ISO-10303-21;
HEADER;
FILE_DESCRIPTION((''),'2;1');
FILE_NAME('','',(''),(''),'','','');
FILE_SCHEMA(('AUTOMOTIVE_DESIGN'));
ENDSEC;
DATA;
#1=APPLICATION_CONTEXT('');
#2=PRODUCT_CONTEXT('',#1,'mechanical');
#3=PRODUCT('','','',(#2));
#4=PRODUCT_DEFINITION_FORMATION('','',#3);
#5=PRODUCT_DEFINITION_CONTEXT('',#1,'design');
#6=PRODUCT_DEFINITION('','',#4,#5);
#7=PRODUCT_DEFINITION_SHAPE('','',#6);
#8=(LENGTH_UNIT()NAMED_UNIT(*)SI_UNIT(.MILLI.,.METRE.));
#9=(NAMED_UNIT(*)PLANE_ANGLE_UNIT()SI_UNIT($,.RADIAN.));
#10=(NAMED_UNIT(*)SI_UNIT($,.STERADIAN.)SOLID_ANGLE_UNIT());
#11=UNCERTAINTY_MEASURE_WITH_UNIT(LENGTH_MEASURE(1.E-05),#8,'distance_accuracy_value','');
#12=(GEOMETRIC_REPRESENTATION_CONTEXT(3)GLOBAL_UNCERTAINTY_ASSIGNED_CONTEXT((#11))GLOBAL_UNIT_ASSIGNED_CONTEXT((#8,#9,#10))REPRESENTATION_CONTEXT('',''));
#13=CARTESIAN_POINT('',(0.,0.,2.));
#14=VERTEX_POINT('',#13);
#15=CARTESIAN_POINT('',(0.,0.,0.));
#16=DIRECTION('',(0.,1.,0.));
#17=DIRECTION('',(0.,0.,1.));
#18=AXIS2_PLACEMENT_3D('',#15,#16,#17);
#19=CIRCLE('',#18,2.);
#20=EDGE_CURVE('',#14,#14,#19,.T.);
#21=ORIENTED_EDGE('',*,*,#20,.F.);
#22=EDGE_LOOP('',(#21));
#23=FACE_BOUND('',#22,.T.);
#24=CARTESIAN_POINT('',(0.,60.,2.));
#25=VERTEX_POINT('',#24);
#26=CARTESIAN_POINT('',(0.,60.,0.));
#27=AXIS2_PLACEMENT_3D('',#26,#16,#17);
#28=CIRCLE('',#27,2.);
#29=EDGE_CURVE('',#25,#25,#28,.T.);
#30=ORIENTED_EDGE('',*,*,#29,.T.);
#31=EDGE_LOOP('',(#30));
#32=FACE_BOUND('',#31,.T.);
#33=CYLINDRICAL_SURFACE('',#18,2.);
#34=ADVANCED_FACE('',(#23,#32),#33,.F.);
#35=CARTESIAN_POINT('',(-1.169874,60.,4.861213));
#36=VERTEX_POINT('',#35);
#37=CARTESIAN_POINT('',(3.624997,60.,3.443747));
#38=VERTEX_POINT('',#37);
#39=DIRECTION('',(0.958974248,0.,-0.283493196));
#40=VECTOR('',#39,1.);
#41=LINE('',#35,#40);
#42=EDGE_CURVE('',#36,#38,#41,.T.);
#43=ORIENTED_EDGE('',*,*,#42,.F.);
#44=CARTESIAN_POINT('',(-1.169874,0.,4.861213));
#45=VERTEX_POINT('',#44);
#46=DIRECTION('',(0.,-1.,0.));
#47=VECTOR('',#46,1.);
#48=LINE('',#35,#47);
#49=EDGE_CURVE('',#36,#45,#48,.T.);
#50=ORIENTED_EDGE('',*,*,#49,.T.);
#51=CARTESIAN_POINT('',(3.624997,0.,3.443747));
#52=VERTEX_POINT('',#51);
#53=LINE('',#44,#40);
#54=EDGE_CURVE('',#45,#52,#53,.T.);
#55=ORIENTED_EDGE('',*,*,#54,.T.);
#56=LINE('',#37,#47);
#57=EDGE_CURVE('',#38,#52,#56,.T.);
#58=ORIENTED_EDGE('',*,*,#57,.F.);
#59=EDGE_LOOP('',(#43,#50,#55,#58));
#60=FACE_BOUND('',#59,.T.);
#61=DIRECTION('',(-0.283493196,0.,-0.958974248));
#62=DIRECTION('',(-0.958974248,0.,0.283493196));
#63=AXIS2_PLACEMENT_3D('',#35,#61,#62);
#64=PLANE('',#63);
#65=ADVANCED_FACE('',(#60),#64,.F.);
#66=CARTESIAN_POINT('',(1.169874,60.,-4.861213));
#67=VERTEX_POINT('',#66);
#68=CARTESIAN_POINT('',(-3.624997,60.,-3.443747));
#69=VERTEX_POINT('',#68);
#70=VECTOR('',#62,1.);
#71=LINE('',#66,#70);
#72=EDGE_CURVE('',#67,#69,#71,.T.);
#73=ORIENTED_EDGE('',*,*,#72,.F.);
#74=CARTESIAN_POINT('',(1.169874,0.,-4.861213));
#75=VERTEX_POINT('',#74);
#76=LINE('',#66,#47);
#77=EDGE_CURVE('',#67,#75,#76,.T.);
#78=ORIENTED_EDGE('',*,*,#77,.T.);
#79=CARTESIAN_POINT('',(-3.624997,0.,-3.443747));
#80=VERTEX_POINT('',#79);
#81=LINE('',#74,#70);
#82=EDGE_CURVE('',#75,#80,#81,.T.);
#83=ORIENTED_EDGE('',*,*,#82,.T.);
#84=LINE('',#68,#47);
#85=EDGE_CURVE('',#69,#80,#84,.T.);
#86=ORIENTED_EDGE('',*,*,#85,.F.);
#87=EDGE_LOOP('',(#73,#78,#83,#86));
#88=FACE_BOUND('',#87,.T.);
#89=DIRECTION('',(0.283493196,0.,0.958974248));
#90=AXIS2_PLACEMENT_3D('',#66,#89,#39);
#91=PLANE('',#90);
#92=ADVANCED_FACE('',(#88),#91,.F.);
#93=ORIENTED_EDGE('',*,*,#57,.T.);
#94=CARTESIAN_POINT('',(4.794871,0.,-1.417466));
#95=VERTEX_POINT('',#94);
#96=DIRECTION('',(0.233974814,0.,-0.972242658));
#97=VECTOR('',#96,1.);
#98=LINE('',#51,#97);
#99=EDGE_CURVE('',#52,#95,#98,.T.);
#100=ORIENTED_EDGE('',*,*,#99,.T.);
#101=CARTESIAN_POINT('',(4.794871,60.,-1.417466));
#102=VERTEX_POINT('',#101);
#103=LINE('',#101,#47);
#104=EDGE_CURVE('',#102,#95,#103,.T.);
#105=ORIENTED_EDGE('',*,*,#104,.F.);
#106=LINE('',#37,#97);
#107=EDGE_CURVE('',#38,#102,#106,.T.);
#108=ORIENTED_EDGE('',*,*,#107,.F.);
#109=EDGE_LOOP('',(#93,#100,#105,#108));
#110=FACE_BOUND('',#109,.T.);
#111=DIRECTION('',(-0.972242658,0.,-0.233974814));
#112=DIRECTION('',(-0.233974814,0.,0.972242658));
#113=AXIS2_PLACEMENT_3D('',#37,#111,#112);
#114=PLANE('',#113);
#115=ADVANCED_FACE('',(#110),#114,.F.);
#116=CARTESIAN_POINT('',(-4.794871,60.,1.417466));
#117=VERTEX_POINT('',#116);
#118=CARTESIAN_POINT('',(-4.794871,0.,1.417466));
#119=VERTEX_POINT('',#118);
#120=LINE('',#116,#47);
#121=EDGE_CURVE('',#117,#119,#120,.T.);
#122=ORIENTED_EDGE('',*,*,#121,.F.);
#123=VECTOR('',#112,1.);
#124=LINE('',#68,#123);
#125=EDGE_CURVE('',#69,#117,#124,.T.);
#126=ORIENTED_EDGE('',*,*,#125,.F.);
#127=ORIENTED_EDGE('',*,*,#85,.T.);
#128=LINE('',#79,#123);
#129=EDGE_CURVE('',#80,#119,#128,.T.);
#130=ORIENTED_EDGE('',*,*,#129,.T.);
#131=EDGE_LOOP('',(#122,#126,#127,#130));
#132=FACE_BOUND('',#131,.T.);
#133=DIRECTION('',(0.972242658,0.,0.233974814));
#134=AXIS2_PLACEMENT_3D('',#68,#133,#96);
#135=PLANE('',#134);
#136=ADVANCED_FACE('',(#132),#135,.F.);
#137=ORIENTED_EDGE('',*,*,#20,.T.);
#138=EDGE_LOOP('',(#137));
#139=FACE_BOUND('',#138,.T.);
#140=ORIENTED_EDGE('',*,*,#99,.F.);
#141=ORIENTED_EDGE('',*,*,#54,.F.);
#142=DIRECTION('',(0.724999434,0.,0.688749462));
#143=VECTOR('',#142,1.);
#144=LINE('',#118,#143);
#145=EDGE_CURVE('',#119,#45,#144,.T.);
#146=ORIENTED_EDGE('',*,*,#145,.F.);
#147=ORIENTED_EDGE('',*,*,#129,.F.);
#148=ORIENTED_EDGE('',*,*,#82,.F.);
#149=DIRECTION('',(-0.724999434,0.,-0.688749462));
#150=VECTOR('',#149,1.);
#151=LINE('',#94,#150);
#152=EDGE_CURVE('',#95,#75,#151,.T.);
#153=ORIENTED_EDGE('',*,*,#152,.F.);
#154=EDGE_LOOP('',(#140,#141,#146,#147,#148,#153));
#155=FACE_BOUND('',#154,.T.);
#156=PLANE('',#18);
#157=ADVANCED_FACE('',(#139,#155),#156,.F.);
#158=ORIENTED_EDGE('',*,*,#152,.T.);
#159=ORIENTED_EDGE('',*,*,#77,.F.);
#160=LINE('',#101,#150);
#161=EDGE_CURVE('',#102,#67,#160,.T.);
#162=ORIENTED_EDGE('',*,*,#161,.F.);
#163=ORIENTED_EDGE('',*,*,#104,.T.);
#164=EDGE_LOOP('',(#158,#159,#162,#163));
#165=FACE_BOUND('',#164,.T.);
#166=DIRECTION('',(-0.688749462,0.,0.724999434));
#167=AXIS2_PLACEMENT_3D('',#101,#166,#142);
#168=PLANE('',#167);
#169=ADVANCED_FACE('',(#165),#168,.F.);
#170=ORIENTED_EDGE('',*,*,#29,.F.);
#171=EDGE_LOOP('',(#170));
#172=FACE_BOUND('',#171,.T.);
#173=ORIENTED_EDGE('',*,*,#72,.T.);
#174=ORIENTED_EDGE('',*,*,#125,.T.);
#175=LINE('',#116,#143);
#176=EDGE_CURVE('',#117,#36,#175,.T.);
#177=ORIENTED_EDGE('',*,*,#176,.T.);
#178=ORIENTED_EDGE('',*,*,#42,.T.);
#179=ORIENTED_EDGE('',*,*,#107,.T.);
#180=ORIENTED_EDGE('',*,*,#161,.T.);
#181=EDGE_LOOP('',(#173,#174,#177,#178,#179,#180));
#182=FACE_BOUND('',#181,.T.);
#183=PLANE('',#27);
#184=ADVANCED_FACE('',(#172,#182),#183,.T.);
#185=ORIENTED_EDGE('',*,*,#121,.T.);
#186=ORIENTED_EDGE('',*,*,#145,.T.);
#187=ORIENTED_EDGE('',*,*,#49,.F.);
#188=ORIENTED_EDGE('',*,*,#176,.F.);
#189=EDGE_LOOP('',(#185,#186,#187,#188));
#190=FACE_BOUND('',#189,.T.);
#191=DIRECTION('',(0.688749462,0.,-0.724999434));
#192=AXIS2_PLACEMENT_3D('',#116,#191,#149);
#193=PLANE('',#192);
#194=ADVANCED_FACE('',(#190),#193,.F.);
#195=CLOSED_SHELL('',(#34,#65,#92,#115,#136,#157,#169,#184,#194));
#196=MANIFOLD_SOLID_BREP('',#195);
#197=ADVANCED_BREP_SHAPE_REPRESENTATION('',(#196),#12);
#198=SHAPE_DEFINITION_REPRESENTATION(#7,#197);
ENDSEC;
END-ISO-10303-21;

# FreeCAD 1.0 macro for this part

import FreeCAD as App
import Part
import Sketcher
Q = App.Units.Quantity


def add_polygon(sketch, points):
    """Adds a closed chain of lines whose ends are joined by coincident constraints."""
    first, n = sketch.GeometryCount, len(points)
    for a, b in zip(points, points[1:] + points[:1]):
        sketch.addGeometry(Part.LineSegment(App.Vector(*a, 0), App.Vector(*b, 0)), False)
    for i in range(n):
        sketch.addConstraint(Sketcher.Constraint("Coincident", first + i, 2, first + (i + 1) % n, 1))

doc = App.newDocument("Part")
body = doc.addObject("PartDesign::Body", "Body")

sketch1 = body.newObject("Sketcher::SketchObject", "Sketch")
sketch1.AttachmentSupport = (doc.getObject("XZ_Plane"), [""])
sketch1.MapMode = "FlatFace"
add_polygon(sketch1, [(3.6, 3.4), (4.8, -1.4), (1.2, -4.9), (-3.6, -3.4), (-4.8, 1.4), (-1.2, 4.9)])
add_polygon(sketch1, [(2.6, -0.8), (2, 1.9), (-0.6, 2.6), (-2.6, 0.8), (-2, -1.9), (0.6, -2.6)])
sketch1.addConstraint([
    Sketcher.Constraint("Symmetric", 0, 2, 3, 2, -1, 1),
    Sketcher.Constraint("Symmetric", 1, 2, 4, 2, -1, 1),
    Sketcher.Constraint("Symmetric", 2, 2, 5, 2, -1, 1),
    Sketcher.Constraint("Symmetric", 6, 2, 9, 2, -1, 1),
    Sketcher.Constraint("Symmetric", 7, 2, 10, 2, -1, 1),
    Sketcher.Constraint("Symmetric", 8, 2, 11, 2, -1, 1),
    Sketcher.Constraint("Parallel", 3, 6),
    Sketcher.Constraint("Parallel", 5, 7),
    Sketcher.Constraint("Parallel", 4, 8),
    Sketcher.Constraint("Equal", 0, 1),
    Sketcher.Constraint("Equal", 1, 2),
    Sketcher.Constraint("Equal", 6, 7),
    Sketcher.Constraint("Equal", 7, 8),
    Sketcher.Constraint("Distance", 0, Q("5 mm")),
    Sketcher.Constraint("Distance", 6, Q("2.690599 mm")),
    Sketcher.Constraint("DistanceY", 6, 2, 5, 2, Q("1.590599 mm")),
    Sketcher.Constraint("DistanceY", 7, 2, 4, 2, Q("2.245298 mm")),
    Sketcher.Constraint("DistanceY", 8, 2, 3, 2, Q("0.654699 mm")),
])
pad1 = body.newObject("PartDesign::Pad", "Pad")
pad1.Profile = sketch1
pad1.Length = 60
pad1.Reversed = True

sketch2 = body.newObject("Sketcher::SketchObject", "Sketch001")
sketch2.AttachmentSupport = (doc.getObject("XZ_Plane"), [""])
sketch2.MapMode = "FlatFace"
sketch2.AttachmentOffset = App.Placement(App.Vector(0, 0, -60), App.Rotation())
sketch2.addGeometry([
    Part.Circle(App.Vector(0, 0, 0), App.Vector(0, 0, 1), 4),
    Part.Circle(App.Vector(0, 0, 0), App.Vector(0, 0, 1), 2),
], False)
sketch2.addConstraint([
    Sketcher.Constraint("Coincident", 0, 3, -1, 1),
    Sketcher.Constraint("Coincident", 1, 3, -1, 1),
    Sketcher.Constraint("Diameter", 0, Q("8 mm")),
    Sketcher.Constraint("Diameter", 1, Q("4 mm")),
])
pad2 = body.newObject("PartDesign::Pad", "Pad001")
pad2.Profile = sketch2
pad2.Length = 60

doc.recompute()
